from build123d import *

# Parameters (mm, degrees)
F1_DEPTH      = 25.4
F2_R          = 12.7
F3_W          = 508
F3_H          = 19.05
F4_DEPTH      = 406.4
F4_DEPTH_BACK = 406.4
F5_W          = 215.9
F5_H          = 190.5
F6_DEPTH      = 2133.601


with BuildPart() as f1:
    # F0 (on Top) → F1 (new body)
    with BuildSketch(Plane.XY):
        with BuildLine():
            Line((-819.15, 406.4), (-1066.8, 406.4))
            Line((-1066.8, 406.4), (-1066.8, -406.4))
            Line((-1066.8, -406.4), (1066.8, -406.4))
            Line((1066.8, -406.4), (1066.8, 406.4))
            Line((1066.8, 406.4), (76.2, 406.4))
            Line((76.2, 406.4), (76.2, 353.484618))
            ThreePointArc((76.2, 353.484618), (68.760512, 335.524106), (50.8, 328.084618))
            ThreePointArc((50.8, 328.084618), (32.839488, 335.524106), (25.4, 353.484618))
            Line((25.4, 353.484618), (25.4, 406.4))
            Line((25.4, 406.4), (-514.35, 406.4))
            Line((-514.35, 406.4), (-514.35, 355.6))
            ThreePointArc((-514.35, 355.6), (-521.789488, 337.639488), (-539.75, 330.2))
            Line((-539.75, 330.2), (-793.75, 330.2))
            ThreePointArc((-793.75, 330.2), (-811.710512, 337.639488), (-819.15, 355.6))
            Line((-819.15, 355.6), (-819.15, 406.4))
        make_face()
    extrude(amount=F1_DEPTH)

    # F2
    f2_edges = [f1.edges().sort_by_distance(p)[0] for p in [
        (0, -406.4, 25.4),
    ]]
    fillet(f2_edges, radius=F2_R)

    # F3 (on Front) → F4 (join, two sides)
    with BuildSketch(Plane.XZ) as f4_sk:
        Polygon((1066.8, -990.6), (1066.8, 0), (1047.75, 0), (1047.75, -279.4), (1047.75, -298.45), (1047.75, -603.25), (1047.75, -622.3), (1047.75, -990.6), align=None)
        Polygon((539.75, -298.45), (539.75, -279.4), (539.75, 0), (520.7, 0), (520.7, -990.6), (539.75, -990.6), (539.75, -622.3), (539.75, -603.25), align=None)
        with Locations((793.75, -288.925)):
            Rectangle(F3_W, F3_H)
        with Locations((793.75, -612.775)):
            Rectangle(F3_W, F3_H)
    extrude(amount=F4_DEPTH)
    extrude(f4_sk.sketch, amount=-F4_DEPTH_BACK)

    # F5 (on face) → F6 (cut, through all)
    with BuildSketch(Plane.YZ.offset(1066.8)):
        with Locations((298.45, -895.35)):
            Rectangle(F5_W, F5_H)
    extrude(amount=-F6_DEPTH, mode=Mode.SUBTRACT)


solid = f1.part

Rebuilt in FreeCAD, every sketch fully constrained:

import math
import FreeCAD as App
import Part
import Sketcher
Q = App.Units.Quantity


def edges_at(feature, points):
    """Names of the edges that pass closest to the given points."""
    edges = feature.Shape.Edges
    near = lambda p: min(range(len(edges)), key=lambda i: edges[i].distToShape(Part.Vertex(*p))[0])
    return sorted({f"Edge{near(p) + 1}" for p in points})


def add_polygon(sketch, points):
    """Adds a closed chain of lines whose ends are joined by coincident constraints."""
    first, n = sketch.GeometryCount, len(points)
    for a, b in zip(points, points[1:] + points[:1]):
        sketch.addGeometry(Part.LineSegment(App.Vector(*a, 0), App.Vector(*b, 0)), False)
    for i in range(n):
        sketch.addConstraint(Sketcher.Constraint("Coincident", first + i, 2, first + (i + 1) % n, 1))

doc = App.newDocument("Part")
body = doc.addObject("PartDesign::Body", "Body")

# Sketch on XY plane
sketch1 = doc.addObject("Sketcher::SketchObject", "Sketch")
body.addObject(sketch1)
sketch1.AttachmentSupport = (doc.XY_Plane, [""])
sketch1.MapMode = "FlatFace"
sketch1.addGeometry(Part.LineSegment(App.Vector(-819, 406, 0), App.Vector(-1067, 406, 0)), False)
sketch1.addGeometry(Part.LineSegment(App.Vector(-1067, 406, 0), App.Vector(-1067, -406, 0)), False)
sketch1.addGeometry(Part.LineSegment(App.Vector(-1067, -406, 0), App.Vector(1067, -406, 0)), False)
sketch1.addGeometry(Part.LineSegment(App.Vector(1067, -406, 0), App.Vector(1067, 406, 0)), False)
sketch1.addGeometry(Part.LineSegment(App.Vector(1067, 406, 0), App.Vector(76, 406, 0)), False)
sketch1.addGeometry(Part.LineSegment(App.Vector(76, 406, 0), App.Vector(76, 353, 0)), False)
sketch1.addGeometry(Part.ArcOfCircle(Part.Circle(App.Vector(51, 353, 0), App.Vector(0, 0, 1), 25), math.radians(-90), math.radians(0)), False)
sketch1.addGeometry(Part.ArcOfCircle(Part.Circle(App.Vector(51, 353, 0), App.Vector(0, 0, 1), 25), math.radians(-180), math.radians(-90)), False)
sketch1.addGeometry(Part.LineSegment(App.Vector(25, 353, 0), App.Vector(25, 406, 0)), False)
sketch1.addGeometry(Part.LineSegment(App.Vector(25, 406, 0), App.Vector(-514, 406, 0)), False)
sketch1.addGeometry(Part.LineSegment(App.Vector(-514, 406, 0), App.Vector(-514, 356, 0)), False)
sketch1.addGeometry(Part.ArcOfCircle(Part.Circle(App.Vector(-540, 356, 0), App.Vector(0, 0, 1), 25), math.radians(-90), math.radians(0)), False)
sketch1.addGeometry(Part.LineSegment(App.Vector(-540, 330, 0), App.Vector(-794, 330, 0)), False)
sketch1.addGeometry(Part.ArcOfCircle(Part.Circle(App.Vector(-794, 356, 0), App.Vector(0, 0, 1), 25), math.radians(-180), math.radians(-90)), False)
sketch1.addGeometry(Part.LineSegment(App.Vector(-819, 356, 0), App.Vector(-819, 406, 0)), False)
sketch1.addConstraint(Sketcher.Constraint("Coincident", 0, 2, 1, 1))
sketch1.addConstraint(Sketcher.Constraint("Coincident", 1, 2, 2, 1))
sketch1.addConstraint(Sketcher.Constraint("Coincident", 2, 2, 3, 1))
sketch1.addConstraint(Sketcher.Constraint("Coincident", 3, 2, 4, 1))
sketch1.addConstraint(Sketcher.Constraint("Coincident", 4, 2, 5, 1))
sketch1.addConstraint(Sketcher.Constraint("Tangent", 5, 2, 6, 2))
sketch1.addConstraint(Sketcher.Constraint("Tangent", 6, 1, 7, 2))
sketch1.addConstraint(Sketcher.Constraint("Tangent", 7, 1, 8, 1))
sketch1.addConstraint(Sketcher.Constraint("Coincident", 8, 2, 9, 1))
sketch1.addConstraint(Sketcher.Constraint("Coincident", 9, 2, 10, 1))
sketch1.addConstraint(Sketcher.Constraint("Tangent", 10, 2, 11, 2))
sketch1.addConstraint(Sketcher.Constraint("Tangent", 11, 1, 12, 1))
sketch1.addConstraint(Sketcher.Constraint("Tangent", 12, 2, 13, 2))
sketch1.addConstraint(Sketcher.Constraint("Tangent", 13, 1, 14, 1))
sketch1.addConstraint(Sketcher.Constraint("Coincident", 14, 2, 0, 1))
sketch1.addConstraint(Sketcher.Constraint("Horizontal", 0))
sketch1.addConstraint(Sketcher.Constraint("Vertical", 1))
sketch1.addConstraint(Sketcher.Constraint("Horizontal", 2))
sketch1.addConstraint(Sketcher.Constraint("Vertical", 3))
sketch1.addConstraint(Sketcher.Constraint("Horizontal", 4))
sketch1.addConstraint(Sketcher.Constraint("Vertical", 5))
sketch1.addConstraint(Sketcher.Constraint("Vertical", 8))
sketch1.addConstraint(Sketcher.Constraint("Horizontal", 9))
sketch1.addConstraint(Sketcher.Constraint("Vertical", 10))
sketch1.addConstraint(Sketcher.Constraint("Horizontal", 12))
sketch1.addConstraint(Sketcher.Constraint("Vertical", 14))
sketch1.addConstraint(Sketcher.Constraint("Equal", 6, 7))
sketch1.addConstraint(Sketcher.Constraint("Equal", 7, 11))
sketch1.addConstraint(Sketcher.Constraint("Equal", 11, 13))
sketch1.addConstraint(Sketcher.Constraint("Symmetric", 0, 2, 2, 2, -1, 1))
sketch1.addConstraint(Sketcher.Constraint("Horizontal", 0, 2, 3, 2))
sketch1.addConstraint(Sketcher.Constraint("Horizontal", 4, 2, 8, 2))
sketch1.addConstraint(Sketcher.Constraint("Vertical", 7, 3, 6, 1))
sketch1.addConstraint(Sketcher.Constraint("Radius", 6, Q("1 in")))
sketch1.addConstraint(Sketcher.Constraint("DistanceX", 2, 1, 2, 2, Q("84 in")))
sketch1.addConstraint(Sketcher.Constraint("DistanceX", 4, 2, 4, 1, Q("39 in")))
sketch1.addConstraint(Sketcher.Constraint("DistanceX", 12, 2, 12, 1, Q("10 in")))
sketch1.addConstraint(Sketcher.Constraint("DistanceY", 1, 2, 1, 1, Q("32 in")))
sketch1.addConstraint(Sketcher.Constraint("DistanceY", 10, 2, 10, 1, Q("2 in")))
sketch1.addConstraint(Sketcher.Constraint("DistanceX", 0, 2, 0, 1, Q("9.75 in")))
sketch1.addConstraint(Sketcher.Constraint("DistanceY", 5, 2, 5, 1, 52.915382))
pad1 = doc.addObject("PartDesign::Pad", "Pad")
body.addObject(pad1)
pad1.Profile = sketch1
pad1.Length = Q("1 in")
doc.recompute()

fillet = doc.addObject("PartDesign::Fillet", "Fillet")
body.addObject(fillet)
fillet.Base = (pad1, edges_at(pad1, [(0, -406.4, 25.4)]))
fillet.Radius = Q("0.5 in")

# Sketch on XZ plane
sketch2 = doc.addObject("Sketcher::SketchObject", "Sketch001")
body.addObject(sketch2)
sketch2.AttachmentSupport = (doc.XZ_Plane, [""])
sketch2.MapMode = "FlatFace"
add_polygon(sketch2, [(1067, -991), (1067, 0), (1048, 0), (1048, -279), (540, -279), (540, 0), (521, 0), (521, -991), (540, -991), (540, -622), (1048, -622), (1048, -991)])  # lines 0-11
add_polygon(sketch2, [(540, -603), (540, -298), (1048, -298), (1048, -603)])  # lines 12-15
sketch2.addConstraint(Sketcher.Constraint("Vertical", 0))
sketch2.addConstraint(Sketcher.Constraint("Horizontal", 1))
sketch2.addConstraint(Sketcher.Constraint("Vertical", 2))
sketch2.addConstraint(Sketcher.Constraint("Horizontal", 3))
sketch2.addConstraint(Sketcher.Constraint("Vertical", 4))
sketch2.addConstraint(Sketcher.Constraint("Horizontal", 5))
sketch2.addConstraint(Sketcher.Constraint("Vertical", 6))
sketch2.addConstraint(Sketcher.Constraint("Horizontal", 7))
sketch2.addConstraint(Sketcher.Constraint("Vertical", 8))
sketch2.addConstraint(Sketcher.Constraint("Horizontal", 9))
sketch2.addConstraint(Sketcher.Constraint("Vertical", 10))
sketch2.addConstraint(Sketcher.Constraint("Horizontal", 11))
sketch2.addConstraint(Sketcher.Constraint("Vertical", 12))
sketch2.addConstraint(Sketcher.Constraint("Horizontal", 13))
sketch2.addConstraint(Sketcher.Constraint("Vertical", 14))
sketch2.addConstraint(Sketcher.Constraint("Horizontal", 15))
sketch2.addConstraint(Sketcher.Constraint("PointOnObject", 0, 2, -1))
sketch2.addConstraint(Sketcher.Constraint("PointOnObject", 4, 2, -1))
sketch2.addConstraint(Sketcher.Constraint("Horizontal", 7, 2, 10, 2))
sketch2.addConstraint(Sketcher.Constraint("Vertical", 4, 2, 7, 2))
sketch2.addConstraint(Sketcher.Constraint("Vertical", 2, 2, 9, 2))
sketch2.addConstraint(Sketcher.Constraint("Vertical", 8, 2, 12, 2))
sketch2.addConstraint(Sketcher.Constraint("Vertical", 10, 2, 13, 2))
sketch2.addConstraint(Sketcher.Constraint("Equal", 1, 5))
sketch2.addConstraint(Sketcher.Constraint("DistanceX", 3, 2, 3, 1, Q("20 in")))
sketch2.addConstraint(Sketcher.Constraint("DistanceY", 0, 1, 0, 2, Q("39 in")))
sketch2.addConstraint(Sketcher.Constraint("DistanceY", 2, 2, 2, 1, Q("11 in")))
sketch2.addConstraint(Sketcher.Constraint("DistanceY", 12, 1, 12, 2, Q("12 in")))
sketch2.addConstraint(Sketcher.Constraint("DistanceY", 8, 1, 8, 2, Q("14.5 in")))
sketch2.addConstraint(Sketcher.Constraint("DistanceX", -1, 1, 0, 2, Q("42 in")))
sketch2.addConstraint(Sketcher.Constraint("DistanceX", 1, 2, 1, 1, Q("0.75 in")))
sketch2.addConstraint(Sketcher.Constraint("DistanceY", 12, 2, -1, 1, Q("11.75 in")))
pad2 = doc.addObject("PartDesign::Pad", "Pad001")
body.addObject(pad2)
pad2.Profile = sketch2
pad2.Type = "TwoLengths"
pad2.Length = Q("16 in")
pad2.Length2 = Q("16 in")

# Sketch on YZ plane
sketch3 = doc.addObject("Sketcher::SketchObject", "Sketch002")
body.addObject(sketch3)
sketch3.AttachmentSupport = (doc.YZ_Plane, [""])
sketch3.MapMode = "FlatFace"
sketch3.AttachmentOffset = App.Placement(App.Vector(0, 0, 42 * 25.4), App.Rotation())
add_polygon(sketch3, [(190, -800), (190, -991), (406, -991), (406, -800)])  # lines 0-3
sketch3.addConstraint(Sketcher.Constraint("Vertical", 0))
sketch3.addConstraint(Sketcher.Constraint("Horizontal", 1))
sketch3.addConstraint(Sketcher.Constraint("Vertical", 2))
sketch3.addConstraint(Sketcher.Constraint("Horizontal", 3))
sketch3.addConstraint(Sketcher.Constraint("DistanceX", 1, 1, 1, 2, Q("8.5 in")))
sketch3.addConstraint(Sketcher.Constraint("DistanceY", 0, 2, 0, 1, Q("7.5 in")))
sketch3.addConstraint(Sketcher.Constraint("DistanceY", 0, 2, -1, 1, Q("39 in")))
sketch3.addConstraint(Sketcher.Constraint("DistanceX", -1, 1, 1, 2, Q("16 in")))
pocket1 = doc.addObject("PartDesign::Pocket", "Pocket")
body.addObject(pocket1)
pocket1.Profile = sketch3
pocket1.Type = "ThroughAll"

doc.recompute()
